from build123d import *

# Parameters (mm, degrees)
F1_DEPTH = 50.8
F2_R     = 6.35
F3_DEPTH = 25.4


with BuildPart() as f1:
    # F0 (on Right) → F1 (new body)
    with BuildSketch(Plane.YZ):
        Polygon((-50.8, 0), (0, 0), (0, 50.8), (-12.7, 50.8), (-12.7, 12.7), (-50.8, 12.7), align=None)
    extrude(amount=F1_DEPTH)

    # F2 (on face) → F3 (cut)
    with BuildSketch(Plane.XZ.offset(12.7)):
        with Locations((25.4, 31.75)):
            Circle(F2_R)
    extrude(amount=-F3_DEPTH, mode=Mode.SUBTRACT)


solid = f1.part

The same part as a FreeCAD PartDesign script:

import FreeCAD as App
import Part
import Sketcher
from FreeCAD import Vector
Q = App.Units.Quantity

doc = App.newDocument("Part")
body = doc.addObject("PartDesign::Body", "Body")

sketch1 = body.newObject("Sketcher::SketchObject", "Sketch")
sketch1.AttachmentSupport = (doc.getObject("YZ_Plane"), [""])
sketch1.MapMode = "FlatFace"
sketch1.addGeometry([
    Part.LineSegment(Vector(-51, 0, 0), Vector(0, 0, 0)),
    Part.LineSegment(Vector(0, 0, 0), Vector(0, 51, 0)),
    Part.LineSegment(Vector(0, 51, 0), Vector(-13, 51, 0)),
    Part.LineSegment(Vector(-13, 51, 0), Vector(-13, 13, 0)),
    Part.LineSegment(Vector(-13, 13, 0), Vector(-51, 13, 0)),
    Part.LineSegment(Vector(-51, 13, 0), Vector(-51, 0, 0)),
], False)
sketch1.addConstraint([
    Sketcher.Constraint("Coincident", 0, 2, 1, 1),
    Sketcher.Constraint("Coincident", 1, 2, 2, 1),
    Sketcher.Constraint("Coincident", 2, 2, 3, 1),
    Sketcher.Constraint("Coincident", 3, 2, 4, 1),
    Sketcher.Constraint("Coincident", 4, 2, 5, 1),
    Sketcher.Constraint("Coincident", 5, 2, 0, 1),
    Sketcher.Constraint("Horizontal", 0),
    Sketcher.Constraint("Vertical", 1),
    Sketcher.Constraint("Horizontal", 2),
    Sketcher.Constraint("Vertical", 3),
    Sketcher.Constraint("Horizontal", 4),
    Sketcher.Constraint("Vertical", 5),
    Sketcher.Constraint("Coincident", 0, 2, -1, 1),
    Sketcher.Constraint("Equal", 0, 1),
    Sketcher.Constraint("Equal", 4, 3),
    Sketcher.Constraint("DistanceX", 0, 1, 0, 2, Q("2 in")),
    Sketcher.Constraint("DistanceX", 2, 2, 2, 1, Q("0.5 in")),
])
pad1 = body.newObject("PartDesign::Pad", "Pad")
pad1.Profile = sketch1
pad1.Length = Q("2 in")

sketch2 = body.newObject("Sketcher::SketchObject", "Sketch001")
sketch2.AttachmentSupport = (doc.getObject("XZ_Plane"), [""])
sketch2.MapMode = "FlatFace"
sketch2.AttachmentOffset = App.Placement(Vector(0, 0, 0.5 * 25.4), App.Rotation())
sketch2.addGeometry(Part.Circle(Vector(25, 32, 0), Vector(0, 0, 1), 6), False)
sketch2.addConstraint([
    Sketcher.Constraint("Diameter", 0, Q("0.5 in")),
    Sketcher.Constraint("DistanceX", -1, 1, 0, 3, Q("1 in")),
    Sketcher.Constraint("DistanceY", -1, 1, 0, 3, Q("1.25 in")),
])
pocket1 = body.newObject("PartDesign::Pocket", "Pocket")
pocket1.Profile = sketch2
pocket1.Length = Q("1 in")

doc.recompute()
